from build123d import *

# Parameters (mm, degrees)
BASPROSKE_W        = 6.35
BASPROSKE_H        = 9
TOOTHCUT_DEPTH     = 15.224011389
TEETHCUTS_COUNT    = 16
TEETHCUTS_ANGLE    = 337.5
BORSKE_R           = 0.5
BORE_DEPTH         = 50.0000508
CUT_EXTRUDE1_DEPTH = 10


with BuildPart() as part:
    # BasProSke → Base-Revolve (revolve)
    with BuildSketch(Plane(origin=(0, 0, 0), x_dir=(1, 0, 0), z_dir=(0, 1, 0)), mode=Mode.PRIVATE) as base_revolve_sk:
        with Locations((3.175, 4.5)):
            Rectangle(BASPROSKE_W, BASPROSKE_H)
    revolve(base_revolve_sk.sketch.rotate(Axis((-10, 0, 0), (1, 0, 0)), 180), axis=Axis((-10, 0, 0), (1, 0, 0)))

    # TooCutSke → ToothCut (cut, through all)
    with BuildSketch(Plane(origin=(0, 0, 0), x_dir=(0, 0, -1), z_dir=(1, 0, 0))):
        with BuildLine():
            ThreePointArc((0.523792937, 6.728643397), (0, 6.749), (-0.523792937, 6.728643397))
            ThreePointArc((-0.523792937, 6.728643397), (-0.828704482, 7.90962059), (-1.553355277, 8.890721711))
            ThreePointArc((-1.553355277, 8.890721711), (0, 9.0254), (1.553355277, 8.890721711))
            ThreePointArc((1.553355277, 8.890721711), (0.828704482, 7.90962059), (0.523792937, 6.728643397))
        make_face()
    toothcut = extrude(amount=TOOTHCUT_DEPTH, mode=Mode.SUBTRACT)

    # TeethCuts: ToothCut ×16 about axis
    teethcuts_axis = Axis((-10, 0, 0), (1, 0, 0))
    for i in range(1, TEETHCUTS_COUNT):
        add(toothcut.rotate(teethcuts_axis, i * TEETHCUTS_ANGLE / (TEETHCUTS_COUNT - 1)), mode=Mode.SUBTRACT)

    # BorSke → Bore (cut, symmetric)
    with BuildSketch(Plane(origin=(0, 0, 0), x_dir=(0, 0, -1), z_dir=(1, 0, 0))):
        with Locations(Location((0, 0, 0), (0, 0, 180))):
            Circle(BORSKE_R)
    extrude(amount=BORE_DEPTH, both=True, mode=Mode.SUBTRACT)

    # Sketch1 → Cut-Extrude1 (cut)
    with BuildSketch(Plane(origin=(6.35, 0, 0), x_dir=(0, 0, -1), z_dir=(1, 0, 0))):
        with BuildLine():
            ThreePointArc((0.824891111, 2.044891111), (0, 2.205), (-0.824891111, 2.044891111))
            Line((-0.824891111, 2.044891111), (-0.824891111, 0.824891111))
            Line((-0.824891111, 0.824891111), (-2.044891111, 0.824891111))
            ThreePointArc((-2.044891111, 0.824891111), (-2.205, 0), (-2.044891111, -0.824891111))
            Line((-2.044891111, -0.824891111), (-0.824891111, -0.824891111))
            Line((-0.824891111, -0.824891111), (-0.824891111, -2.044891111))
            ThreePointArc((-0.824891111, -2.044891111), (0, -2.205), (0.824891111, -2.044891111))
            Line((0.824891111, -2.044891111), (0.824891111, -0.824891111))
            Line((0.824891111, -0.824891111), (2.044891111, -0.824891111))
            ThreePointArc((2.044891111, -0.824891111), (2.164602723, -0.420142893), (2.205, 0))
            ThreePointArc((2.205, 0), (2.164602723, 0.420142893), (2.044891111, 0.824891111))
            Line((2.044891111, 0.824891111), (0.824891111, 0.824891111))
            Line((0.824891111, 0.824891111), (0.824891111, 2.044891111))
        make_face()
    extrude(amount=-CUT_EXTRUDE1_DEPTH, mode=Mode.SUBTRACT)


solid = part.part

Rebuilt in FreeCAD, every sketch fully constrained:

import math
import FreeCAD as App
import Part
import Sketcher

doc = App.newDocument("Part")
params = doc.addObject("Spreadsheet::Sheet", "Params")
for row, (alias, value) in enumerate([
    ("sketch1_height", "9 mm"),
    ("sketch1_width", "6.35 mm"),
    ("revolution_angle", "360 deg"),
    ("sketch2_radius", "3.2 mm"),
    ("sketch3_diameter", "1 mm"),
    ("pocket2_length", "100.000102 mm"),
    ("sketch4_width", "1.22 mm"),
    ("pocket3_length", "10 mm"),
], start=1):
    params.set(f"A{row}", alias)
    params.set(f"B{row}", "=" + value)
    params.setAlias(f"B{row}", alias)

body = doc.addObject("PartDesign::Body", "Body")

sketch1 = body.newObject("Sketcher::SketchObject", "Sketch")
sketch1.AttachmentSupport = (doc.getObject("XZ_Plane"), [""])
sketch1.MapMode = "FlatFace"
sketch1.addGeometry([
    Part.LineSegment(App.Vector(0, -9, 0), App.Vector(0, 0, 0)),
    Part.LineSegment(App.Vector(0, 0, 0), App.Vector(6.35, 0, 0)),
    Part.LineSegment(App.Vector(6.35, 0, 0), App.Vector(6.35, -9, 0)),
    Part.LineSegment(App.Vector(6.35, -9, 0), App.Vector(0, -9, 0)),
], False)
sketch1.addConstraint([
    Sketcher.Constraint("Coincident", 0, 2, 1, 1),
    Sketcher.Constraint("Coincident", 1, 2, 2, 1),
    Sketcher.Constraint("Coincident", 2, 2, 3, 1),
    Sketcher.Constraint("Coincident", 3, 2, 0, 1),
    Sketcher.Constraint("Vertical", 0),
    Sketcher.Constraint("Horizontal", 1),
    Sketcher.Constraint("Vertical", 2),
    Sketcher.Constraint("Horizontal", 3),
    Sketcher.Constraint("Coincident", 0, 2, -1, 1),
    Sketcher.Constraint("DistanceY", 0, 1, 0, 2, 9.0),
    Sketcher.Constraint("DistanceX", 1, 1, 1, 2, 6.35),
])
sketch1.setExpression("Constraints[9]", "Params.sketch1_height")
sketch1.setExpression("Constraints[10]", "Params.sketch1_width")
revolution = body.newObject("PartDesign::Revolution", "Revolution")
revolution.Profile = sketch1
revolution.ReferenceAxis = (sketch1, ["H_Axis"])
revolution.setExpression("Angle", "Params.revolution_angle")

sketch2 = body.newObject("Sketcher::SketchObject", "Sketch001")
sketch2.AttachmentSupport = (doc.getObject("YZ_Plane"), [""])
sketch2.MapMode = "FlatFace"
sketch2.addGeometry([
    Part.ArcOfCircle(Part.Circle(App.Vector(0, 0, 0), App.Vector(0, 0, 1), 6.749), math.radians(-4.451227), math.radians(4.451227)),
    Part.ArcOfCircle(Part.Circle(App.Vector(6.533832, -3.717857, 0), App.Vector(0, 0, 1), 3.2), math.radians(42.563503), math.radians(86.509753)),
    Part.ArcOfCircle(Part.Circle(App.Vector(0, 0, 0), App.Vector(0, 0, 1), 9.0254), math.radians(-9.910481), math.radians(9.910481)),
    Part.ArcOfCircle(Part.Circle(App.Vector(6.533832, 3.717857, 0), App.Vector(0, 0, 1), 3.2), math.radians(-86.509753), math.radians(-42.563503)),
], False)
sketch2.addConstraint([
    Sketcher.Constraint("Coincident", 0, 1, 1, 2),
    Sketcher.Constraint("Coincident", 1, 1, 2, 1),
    Sketcher.Constraint("Coincident", 2, 2, 3, 2),
    Sketcher.Constraint("Coincident", 3, 1, 0, 2),
    Sketcher.Constraint("Coincident", 0, 3, -1, 1),
    Sketcher.Constraint("Coincident", 2, 3, -1, 1),
    Sketcher.Constraint("Equal", 1, 3),
    Sketcher.Constraint("Symmetric", 1, 3, 3, 3, -1),
    Sketcher.Constraint("Radius", 1, 3.2),
    Sketcher.Constraint("Radius", 0, 6.749),
    Sketcher.Constraint("Radius", 2, 9.0254),
    Sketcher.Constraint("DistanceX", -1, 1, 1, 3, 6.533832),
    Sketcher.Constraint("DistanceX", -1, 1, 1, 1, 8.890722),
])
sketch2.setExpression("Constraints[8]", "Params.sketch2_radius")
pocket1 = body.newObject("PartDesign::Pocket", "Pocket")
pocket1.Profile = sketch2
pocket1.Type = "ThroughAll"
pocket1.Reversed = True
doc.recompute()

polarpattern = body.newObject("PartDesign::PolarPattern", "PolarPattern")
polarpattern.Originals = [pocket1]
polarpattern.Axis = (doc.getObject("X_Axis"), [""])
polarpattern.Angle = 360
polarpattern.Occurrences = 16
body.Tip = polarpattern

sketch3 = body.newObject("Sketcher::SketchObject", "Sketch002")
sketch3.AttachmentSupport = (doc.getObject("YZ_Plane"), [""])
sketch3.MapMode = "FlatFace"
sketch3.addGeometry(Part.Circle(App.Vector(0, 0, 0), App.Vector(0, 0, 1), 0.5), False)
sketch3.addConstraint([
    Sketcher.Constraint("Coincident", 0, 3, -1, 1),
    Sketcher.Constraint("Diameter", 0, 1.0),
])
sketch3.setExpression("Constraints[1]", "Params.sketch3_diameter")
pocket2 = body.newObject("PartDesign::Pocket", "Pocket001")
pocket2.Profile = sketch3
pocket2.setExpression("Length", "Params.pocket2_length")
pocket2.Midplane = True

sketch4 = body.newObject("Sketcher::SketchObject", "Sketch003")
sketch4.AttachmentSupport = (doc.getObject("YZ_Plane"), [""])
sketch4.MapMode = "FlatFace"
sketch4.AttachmentOffset = App.Placement(App.Vector(0, 0, 6.35), App.Rotation())
sketch4.addGeometry([
    Part.ArcOfCircle(Part.Circle(App.Vector(0, 0, 0), App.Vector(0, 0, 1), 2.205), math.radians(-21.968715), math.radians(21.968715)),
    Part.LineSegment(App.Vector(2.044891, 0.824891, 0), App.Vector(0.824891, 0.824891, 0)),
    Part.LineSegment(App.Vector(0.824891, 0.824891, 0), App.Vector(0.824891, 2.044891, 0)),
    Part.ArcOfCircle(Part.Circle(App.Vector(0, 0, 0), App.Vector(0, 0, 1), 2.205), math.radians(68.031285), math.radians(111.968715)),
    Part.LineSegment(App.Vector(-0.824891, 2.044891, 0), App.Vector(-0.824891, 0.824891, 0)),
    Part.LineSegment(App.Vector(-0.824891, 0.824891, 0), App.Vector(-2.044891, 0.824891, 0)),
    Part.ArcOfCircle(Part.Circle(App.Vector(0, 0, 0), App.Vector(0, 0, 1), 2.205), math.radians(158.031285), math.radians(201.968715)),
    Part.LineSegment(App.Vector(-2.044891, -0.824891, 0), App.Vector(-0.824891, -0.824891, 0)),
    Part.LineSegment(App.Vector(-0.824891, -0.824891, 0), App.Vector(-0.824891, -2.044891, 0)),
    Part.ArcOfCircle(Part.Circle(App.Vector(0, 0, 0), App.Vector(0, 0, 1), 2.205), math.radians(-111.968715), math.radians(-90)),
    Part.ArcOfCircle(Part.Circle(App.Vector(0, 0, 0), App.Vector(0, 0, 1), 2.205), math.radians(-90), math.radians(-68.031285)),
    Part.LineSegment(App.Vector(0.824891, -2.044891, 0), App.Vector(0.824891, -0.824891, 0)),
    Part.LineSegment(App.Vector(0.824891, -0.824891, 0), App.Vector(2.044891, -0.824891, 0)),
], False)
sketch4.addConstraint([
    Sketcher.Constraint("Coincident", 0, 2, 1, 1),
    Sketcher.Constraint("Coincident", 1, 2, 2, 1),
    Sketcher.Constraint("Coincident", 2, 2, 3, 1),
    Sketcher.Constraint("Coincident", 3, 2, 4, 1),
    Sketcher.Constraint("Coincident", 4, 2, 5, 1),
    Sketcher.Constraint("Coincident", 5, 2, 6, 1),
    Sketcher.Constraint("Coincident", 6, 2, 7, 1),
    Sketcher.Constraint("Coincident", 7, 2, 8, 1),
    Sketcher.Constraint("Coincident", 8, 2, 9, 1),
    Sketcher.Constraint("Tangent", 9, 2, 10, 1),
    Sketcher.Constraint("Coincident", 10, 2, 11, 1),
    Sketcher.Constraint("Coincident", 11, 2, 12, 1),
    Sketcher.Constraint("Coincident", 12, 2, 0, 1),
    Sketcher.Constraint("Horizontal", 1),
    Sketcher.Constraint("Vertical", 2),
    Sketcher.Constraint("Vertical", 4),
    Sketcher.Constraint("Horizontal", 5),
    Sketcher.Constraint("Horizontal", 7),
    Sketcher.Constraint("Vertical", 8),
    Sketcher.Constraint("Vertical", 11),
    Sketcher.Constraint("Horizontal", 12),
    Sketcher.Constraint("Coincident", 0, 3, -1, 1),
    Sketcher.Constraint("Coincident", 3, 3, -1, 1),
    Sketcher.Constraint("Coincident", 6, 3, -1, 1),
    Sketcher.Constraint("Coincident", 9, 3, -1, 1),
    Sketcher.Constraint("Equal", 0, 3),
    Sketcher.Constraint("Equal", 3, 6),
    Sketcher.Constraint("Equal", 6, 9),
    Sketcher.Constraint("Equal", 9, 10),
    Sketcher.Constraint("Symmetric", 1, 2, 7, 2, -1, 1),
    Sketcher.Constraint("Symmetric", 4, 2, 11, 2, -1, 1),
    Sketcher.Constraint("Symmetric", 1, 2, 4, 2, -2),
    Sketcher.Constraint("PointOnObject", 9, 2, -2),
    Sketcher.Constraint("Equal", 12, 2),
    Sketcher.Constraint("Radius", 0, 2.205),
    Sketcher.Constraint("DistanceX", 1, 2, 1, 1, 1.22),
])
sketch4.setExpression("Constraints[35]", "Params.sketch4_width")
pocket3 = body.newObject("PartDesign::Pocket", "Pocket002")
pocket3.Profile = sketch4
pocket3.setExpression("Length", "Params.pocket3_length")

doc.recompute()
